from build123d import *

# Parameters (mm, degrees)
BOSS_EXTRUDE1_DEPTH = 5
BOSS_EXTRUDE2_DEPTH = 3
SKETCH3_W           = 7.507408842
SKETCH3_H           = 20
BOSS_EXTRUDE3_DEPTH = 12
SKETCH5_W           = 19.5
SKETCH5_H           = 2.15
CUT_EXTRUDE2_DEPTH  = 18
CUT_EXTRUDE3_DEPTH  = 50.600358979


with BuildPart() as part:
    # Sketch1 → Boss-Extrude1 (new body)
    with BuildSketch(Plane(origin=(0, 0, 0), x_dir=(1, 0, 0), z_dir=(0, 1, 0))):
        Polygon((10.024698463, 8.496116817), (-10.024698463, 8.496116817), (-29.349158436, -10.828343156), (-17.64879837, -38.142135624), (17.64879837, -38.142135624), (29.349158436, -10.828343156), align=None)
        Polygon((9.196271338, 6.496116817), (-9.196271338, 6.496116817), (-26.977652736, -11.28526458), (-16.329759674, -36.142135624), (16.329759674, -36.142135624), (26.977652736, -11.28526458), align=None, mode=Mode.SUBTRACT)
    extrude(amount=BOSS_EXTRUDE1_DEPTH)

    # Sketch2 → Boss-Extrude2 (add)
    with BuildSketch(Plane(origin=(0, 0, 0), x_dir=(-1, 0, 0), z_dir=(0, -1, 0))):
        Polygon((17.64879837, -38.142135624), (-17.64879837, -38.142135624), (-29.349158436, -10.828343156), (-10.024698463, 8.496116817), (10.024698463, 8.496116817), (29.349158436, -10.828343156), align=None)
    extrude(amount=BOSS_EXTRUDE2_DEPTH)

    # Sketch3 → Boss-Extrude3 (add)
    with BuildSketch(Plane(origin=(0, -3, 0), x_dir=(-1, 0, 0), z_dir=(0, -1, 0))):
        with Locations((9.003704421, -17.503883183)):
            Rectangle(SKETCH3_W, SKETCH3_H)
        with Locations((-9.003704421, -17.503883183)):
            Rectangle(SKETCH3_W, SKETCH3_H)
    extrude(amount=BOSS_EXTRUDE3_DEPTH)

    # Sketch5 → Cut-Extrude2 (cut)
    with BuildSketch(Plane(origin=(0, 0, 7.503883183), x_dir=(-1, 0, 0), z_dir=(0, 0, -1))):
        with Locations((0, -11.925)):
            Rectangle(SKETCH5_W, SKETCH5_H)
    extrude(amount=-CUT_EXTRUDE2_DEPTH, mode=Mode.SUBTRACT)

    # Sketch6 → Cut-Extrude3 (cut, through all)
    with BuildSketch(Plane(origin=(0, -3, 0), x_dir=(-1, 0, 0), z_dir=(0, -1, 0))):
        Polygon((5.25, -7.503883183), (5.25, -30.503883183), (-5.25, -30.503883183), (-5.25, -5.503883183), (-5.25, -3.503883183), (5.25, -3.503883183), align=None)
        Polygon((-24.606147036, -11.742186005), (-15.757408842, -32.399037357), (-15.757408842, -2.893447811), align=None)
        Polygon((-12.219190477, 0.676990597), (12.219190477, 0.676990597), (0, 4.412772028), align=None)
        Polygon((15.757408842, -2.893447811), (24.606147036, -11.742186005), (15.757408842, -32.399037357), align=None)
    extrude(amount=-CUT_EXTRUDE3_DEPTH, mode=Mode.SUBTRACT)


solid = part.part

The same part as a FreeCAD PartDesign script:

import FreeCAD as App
import Part
import Sketcher
Q = App.Units.Quantity

doc = App.newDocument("Part")
body = doc.addObject("PartDesign::Body", "Body")

# Sketch on XZ plane
sketch1 = doc.addObject("Sketcher::SketchObject", "Sketch")
body.addObject(sketch1)
sketch1.AttachmentSupport = (doc.XZ_Plane, [""])
sketch1.MapMode = "FlatFace"
sketch1.addGeometry([
    Part.LineSegment(App.Vector(10.024698, -8.496117, 0), App.Vector(-10.024698, -8.496117, 0)),  # 0
    Part.LineSegment(App.Vector(-10.024698, -8.496117, 0), App.Vector(-29.349158, 10.828343, 0)),  # 1
    Part.LineSegment(App.Vector(-29.349158, 10.828343, 0), App.Vector(-17.648798, 38.142136, 0)),  # 2
    Part.LineSegment(App.Vector(-17.648798, 38.142136, 0), App.Vector(17.648798, 38.142136, 0)),  # 3
    Part.LineSegment(App.Vector(17.648798, 38.142136, 0), App.Vector(29.349158, 10.828343, 0)),  # 4
    Part.LineSegment(App.Vector(29.349158, 10.828343, 0), App.Vector(10.024698, -8.496117, 0)),  # 5
    Part.LineSegment(App.Vector(-9.196271, -6.496117, 0), App.Vector(9.196271, -6.496117, 0)),  # 6
    Part.LineSegment(App.Vector(9.196271, -6.496117, 0), App.Vector(26.977653, 11.285265, 0)),  # 7
    Part.LineSegment(App.Vector(26.977653, 11.285265, 0), App.Vector(16.32976, 36.142136, 0)),  # 8
    Part.LineSegment(App.Vector(16.32976, 36.142136, 0), App.Vector(-16.32976, 36.142136, 0)),  # 9
    Part.LineSegment(App.Vector(-16.32976, 36.142136, 0), App.Vector(-26.977653, 11.285265, 0)),  # 10
    Part.LineSegment(App.Vector(-26.977653, 11.285265, 0), App.Vector(-9.196271, -6.496117, 0)),  # 11
], False)
sketch1.addConstraint([
    Sketcher.Constraint("Coincident", 0, 2, 1, 1),
    Sketcher.Constraint("Coincident", 1, 2, 2, 1),
    Sketcher.Constraint("Coincident", 2, 2, 3, 1),
    Sketcher.Constraint("Coincident", 3, 2, 4, 1),
    Sketcher.Constraint("Coincident", 4, 2, 5, 1),
    Sketcher.Constraint("Coincident", 5, 2, 0, 1),
    Sketcher.Constraint("Coincident", 6, 2, 7, 1),
    Sketcher.Constraint("Coincident", 7, 2, 8, 1),
    Sketcher.Constraint("Coincident", 8, 2, 9, 1),
    Sketcher.Constraint("Coincident", 9, 2, 10, 1),
    Sketcher.Constraint("Coincident", 10, 2, 11, 1),
    Sketcher.Constraint("Coincident", 11, 2, 6, 1),
    Sketcher.Constraint("Horizontal", 0),
    Sketcher.Constraint("Horizontal", 3),
    Sketcher.Constraint("Horizontal", 6),
    Sketcher.Constraint("Horizontal", 9),
    Sketcher.Constraint("Symmetric", 1, 2, 4, 2, -2),
    Sketcher.Constraint("Symmetric", 7, 2, 10, 2, -2),
    Sketcher.Constraint("Perpendicular", 1, 5),
    Sketcher.Constraint("Parallel", 5, 7),
    Sketcher.Constraint("Parallel", 4, 8),
    Sketcher.Constraint("Parallel", 2, 10),
    Sketcher.Constraint("Perpendicular", 7, 11),
    Sketcher.Constraint("Equal", 2, 4),
    Sketcher.Constraint("Equal", 1, 5),
    Sketcher.Constraint("DistanceY", 5, 2, 6, 2, 2.0),
    Sketcher.Constraint("DistanceY", 8, 2, 3, 2, 2.0),
    Sketcher.Constraint("DistanceX", 9, 2, 9, 1, 32.659519),
    Sketcher.Constraint("DistanceX", 0, 2, -1, 1, 10.024698),
    Sketcher.Constraint("DistanceX", 2, 2, -1, 1, 17.648798),
    Sketcher.Constraint("DistanceX", 8, 2, 4, 2, 13.019399),
    Sketcher.Constraint("Distance", 7, 25.146671),
    Sketcher.Constraint("Distance", 8, 27.04148),
    Sketcher.Constraint("DistanceY", 0, 2, -1, 1, 8.496117),
])
pad1 = doc.addObject("PartDesign::Pad", "Pad")
body.addObject(pad1)
pad1.Profile = sketch1
pad1.Length = 5
pad1.Reversed = True

# Sketch on XZ plane
sketch2 = doc.addObject("Sketcher::SketchObject", "Sketch001")
body.addObject(sketch2)
sketch2.AttachmentSupport = (doc.XZ_Plane, [""])
sketch2.MapMode = "FlatFace"
sketch2.addGeometry([
    Part.LineSegment(App.Vector(17.648798, 38.142136, 0), App.Vector(-17.648798, 38.142136, 0)),  # 0
    Part.LineSegment(App.Vector(-17.648798, 38.142136, 0), App.Vector(-29.349158, 10.828343, 0)),  # 1
    Part.LineSegment(App.Vector(-29.349158, 10.828343, 0), App.Vector(-10.024698, -8.496117, 0)),  # 2
    Part.LineSegment(App.Vector(-10.024698, -8.496117, 0), App.Vector(10.024698, -8.496117, 0)),  # 3
    Part.LineSegment(App.Vector(10.024698, -8.496117, 0), App.Vector(29.349158, 10.828343, 0)),  # 4
    Part.LineSegment(App.Vector(29.349158, 10.828343, 0), App.Vector(17.648798, 38.142136, 0)),  # 5
], False)
sketch2.addConstraint([
    Sketcher.Constraint("Coincident", 0, 2, 1, 1),
    Sketcher.Constraint("Coincident", 1, 2, 2, 1),
    Sketcher.Constraint("Coincident", 2, 2, 3, 1),
    Sketcher.Constraint("Coincident", 3, 2, 4, 1),
    Sketcher.Constraint("Coincident", 4, 2, 5, 1),
    Sketcher.Constraint("Coincident", 5, 2, 0, 1),
    Sketcher.Constraint("Horizontal", 0),
    Sketcher.Constraint("Horizontal", 3),
    Sketcher.Constraint("Symmetric", 1, 2, 4, 2, -2),
    Sketcher.Constraint("Perpendicular", 2, 4),
    Sketcher.Constraint("Equal", 2, 4),
    Sketcher.Constraint("Equal", 1, 5),
    Sketcher.Constraint("DistanceX", 0, 2, -1, 1, 17.648798),
    Sketcher.Constraint("DistanceX", 2, 2, -1, 1, 10.024698),
    Sketcher.Constraint("DistanceX", 1, 2, -1, 1, 29.349158),
    Sketcher.Constraint("Distance", 1, 29.714335),
    Sketcher.Constraint("DistanceY", -1, 1, 0, 2, 38.142136),
])
pad2 = doc.addObject("PartDesign::Pad", "Pad001")
body.addObject(pad2)
pad2.Profile = sketch2
pad2.Length = 3

# Sketch on XZ plane
sketch3 = doc.addObject("Sketcher::SketchObject", "Sketch002")
body.addObject(sketch3)
sketch3.AttachmentSupport = (doc.XZ_Plane, [""])
sketch3.MapMode = "FlatFace"
sketch3.AttachmentOffset = App.Placement(App.Vector(0, 0, 3), App.Rotation())
sketch3.addGeometry([
    Part.LineSegment(App.Vector(-5.25, 7.503883, 0), App.Vector(-5.25, 27.503883, 0)),  # 0
    Part.LineSegment(App.Vector(-5.25, 27.503883, 0), App.Vector(-12.757409, 27.503883, 0)),  # 1
    Part.LineSegment(App.Vector(-12.757409, 27.503883, 0), App.Vector(-12.757409, 7.503883, 0)),  # 2
    Part.LineSegment(App.Vector(-12.757409, 7.503883, 0), App.Vector(-5.25, 7.503883, 0)),  # 3
    Part.LineSegment(App.Vector(12.757409, 7.503883, 0), App.Vector(12.757409, 27.503883, 0)),  # 4
    Part.LineSegment(App.Vector(12.757409, 27.503883, 0), App.Vector(5.25, 27.503883, 0)),  # 5
    Part.LineSegment(App.Vector(5.25, 27.503883, 0), App.Vector(5.25, 7.503883, 0)),  # 6
    Part.LineSegment(App.Vector(5.25, 7.503883, 0), App.Vector(12.757409, 7.503883, 0)),  # 7
], False)
sketch3.addConstraint([
    Sketcher.Constraint("Coincident", 0, 2, 1, 1),
    Sketcher.Constraint("Coincident", 1, 2, 2, 1),
    Sketcher.Constraint("Coincident", 2, 2, 3, 1),
    Sketcher.Constraint("Coincident", 3, 2, 0, 1),
    Sketcher.Constraint("Coincident", 4, 2, 5, 1),
    Sketcher.Constraint("Coincident", 5, 2, 6, 1),
    Sketcher.Constraint("Coincident", 6, 2, 7, 1),
    Sketcher.Constraint("Coincident", 7, 2, 4, 1),
    Sketcher.Constraint("Vertical", 0),
    Sketcher.Constraint("Horizontal", 1),
    Sketcher.Constraint("Vertical", 2),
    Sketcher.Constraint("Horizontal", 3),
    Sketcher.Constraint("Vertical", 4),
    Sketcher.Constraint("Horizontal", 5),
    Sketcher.Constraint("Vertical", 6),
    Sketcher.Constraint("Horizontal", 7),
    Sketcher.Constraint("Symmetric", 1, 2, 4, 2, -2),
    Sketcher.Constraint("Symmetric", 3, 2, 6, 2, -2),
    Sketcher.Constraint("DistanceY", 0, 1, 0, 2, 20.0),
    Sketcher.Constraint("DistanceX", 0, 2, 5, 2, 10.5),
    Sketcher.Constraint("DistanceX", 1, 2, 1, 1, 7.507409),
    Sketcher.Constraint("DistanceY", -1, 1, 0, 2, 27.503883),
])
pad3 = doc.addObject("PartDesign::Pad", "Pad002")
body.addObject(pad3)
pad3.Profile = sketch3
pad3.Length = 12

# Sketch on XY plane
sketch4 = doc.addObject("Sketcher::SketchObject", "Sketch003")
body.addObject(sketch4)
sketch4.AttachmentSupport = (doc.XY_Plane, [""])
sketch4.MapMode = "FlatFace"
sketch4.AttachmentOffset = App.Placement(App.Vector(0, 0, 7.503883), App.Rotation())
sketch4.addGeometry([
    Part.LineSegment(App.Vector(9.75, -10.85, 0), App.Vector(9.75, -13, 0)),
    Part.LineSegment(App.Vector(9.75, -13, 0), App.Vector(-9.75, -13, 0)),
    Part.LineSegment(App.Vector(-9.75, -13, 0), App.Vector(-9.75, -10.85, 0)),
    Part.LineSegment(App.Vector(-9.75, -10.85, 0), App.Vector(9.75, -10.85, 0)),
], False)
sketch4.addConstraint([
    Sketcher.Constraint("Coincident", 0, 2, 1, 1),
    Sketcher.Constraint("Coincident", 1, 2, 2, 1),
    Sketcher.Constraint("Coincident", 2, 2, 3, 1),
    Sketcher.Constraint("Coincident", 3, 2, 0, 1),
    Sketcher.Constraint("Vertical", 0),
    Sketcher.Constraint("Horizontal", 1),
    Sketcher.Constraint("Vertical", 2),
    Sketcher.Constraint("Horizontal", 3),
    Sketcher.Constraint("DistanceX", 1, 2, 1, 1, 19.5),
    Sketcher.Constraint("DistanceY", 0, 2, -1, 1, 13.0),
    Sketcher.Constraint("DistanceY", 0, 2, 0, 1, 2.15),
    Sketcher.Constraint("DistanceX", -1, 1, 0, 2, 9.75),
])
pocket1 = doc.addObject("PartDesign::Pocket", "Pocket")
body.addObject(pocket1)
pocket1.Profile = sketch4
pocket1.Length = 18
pocket1.Reversed = True

# Sketch on XZ plane
sketch5 = doc.addObject("Sketcher::SketchObject", "Sketch004")
body.addObject(sketch5)
sketch5.AttachmentSupport = (doc.XZ_Plane, [""])
sketch5.MapMode = "FlatFace"
sketch5.AttachmentOffset = App.Placement(App.Vector(0, 0, 3), App.Rotation())
sketch5.addGeometry([
    Part.LineSegment(App.Vector(-5.25, 30.503883, 0), App.Vector(-5.25, 3.503883, 0)),  # 0
    Part.LineSegment(App.Vector(-5.25, 3.503883, 0), App.Vector(5.25, 3.503883, 0)),  # 1
    Part.LineSegment(App.Vector(5.25, 3.503883, 0), App.Vector(5.25, 30.503883, 0)),  # 2
    Part.LineSegment(App.Vector(5.25, 30.503883, 0), App.Vector(-5.25, 30.503883, 0)),  # 3
    Part.LineSegment(App.Vector(24.606147, 11.742186, 0), App.Vector(15.757409, 32.399037, 0)),  # 4
    Part.LineSegment(App.Vector(15.757409, 32.399037, 0), App.Vector(15.757409, 2.893448, 0)),  # 5
    Part.LineSegment(App.Vector(15.757409, 2.893448, 0), App.Vector(24.606147, 11.742186, 0)),  # 6
    Part.LineSegment(App.Vector(12.21919, -0.676991, 0), App.Vector(-12.21919, -0.676991, 0)),  # 7
    Part.LineSegment(App.Vector(-12.21919, -0.676991, 0), App.Vector(0, -4.412772, 0)),  # 8
    Part.LineSegment(App.Vector(0, -4.412772, 0), App.Vector(12.21919, -0.676991, 0)),  # 9
    Part.LineSegment(App.Vector(-24.606147, 11.742186, 0), App.Vector(-15.757409, 2.893448, 0)),  # 10
    Part.LineSegment(App.Vector(-15.757409, 2.893448, 0), App.Vector(-15.757409, 32.399037, 0)),  # 11
    Part.LineSegment(App.Vector(-15.757409, 32.399037, 0), App.Vector(-24.606147, 11.742186, 0)),  # 12
], False)
sketch5.addConstraint([
    Sketcher.Constraint("Coincident", 0, 2, 1, 1),
    Sketcher.Constraint("Coincident", 1, 2, 2, 1),
    Sketcher.Constraint("Coincident", 2, 2, 3, 1),
    Sketcher.Constraint("Coincident", 3, 2, 0, 1),
    Sketcher.Constraint("Coincident", 4, 2, 5, 1),
    Sketcher.Constraint("Coincident", 5, 2, 6, 1),
    Sketcher.Constraint("Coincident", 6, 2, 4, 1),
    Sketcher.Constraint("Coincident", 7, 2, 8, 1),
    Sketcher.Constraint("Coincident", 8, 2, 9, 1),
    Sketcher.Constraint("Coincident", 9, 2, 7, 1),
    Sketcher.Constraint("Coincident", 10, 2, 11, 1),
    Sketcher.Constraint("Coincident", 11, 2, 12, 1),
    Sketcher.Constraint("Coincident", 12, 2, 10, 1),
    Sketcher.Constraint("Vertical", 0),
    Sketcher.Constraint("Horizontal", 1),
    Sketcher.Constraint("Vertical", 2),
    Sketcher.Constraint("Horizontal", 3),
    Sketcher.Constraint("Vertical", 5),
    Sketcher.Constraint("Horizontal", 7),
    Sketcher.Constraint("Vertical", 11),
    Sketcher.Constraint("Symmetric", 5, 2, 10, 2, -2),
    Sketcher.Constraint("Symmetric", 6, 2, 12, 2, -2),
    Sketcher.Constraint("PointOnObject", 8, 2, -2),
    Sketcher.Constraint("Perpendicular", 6, 10),
    Sketcher.Constraint("Horizontal", 4, 2, 11, 2),
    Sketcher.Constraint("Equal", 8, 9),
    Sketcher.Constraint("DistanceY", 0, 2, 0, 1, 27.0),
    Sketcher.Constraint("Angle", 8, Q("-17 deg")),
    Sketcher.Constraint("DistanceX", 1, 1, 1, 2, 10.5),
    Sketcher.Constraint("DistanceX", 0, 2, -1, 1, 5.25),
    Sketcher.Constraint("DistanceX", 7, 2, 7, 1, 24.438381),
    Sketcher.Constraint("DistanceY", 5, 2, 5, 1, 29.50559),
    Sketcher.Constraint("DistanceX", 7, 2, 5, 2, 27.976599),
    Sketcher.Constraint("Distance", 4, 22.472331),
    Sketcher.Constraint("DistanceY", 7, 2, -1, 1, 0.676991),
    Sketcher.Constraint("DistanceY", 7, 2, 5, 2, 3.570438),
    Sketcher.Constraint("DistanceY", -1, 1, 0, 2, 3.503883),
])
pocket2 = doc.addObject("PartDesign::Pocket", "Pocket001")
body.addObject(pocket2)
pocket2.Profile = sketch5
pocket2.Type = "ThroughAll"

doc.recompute()
